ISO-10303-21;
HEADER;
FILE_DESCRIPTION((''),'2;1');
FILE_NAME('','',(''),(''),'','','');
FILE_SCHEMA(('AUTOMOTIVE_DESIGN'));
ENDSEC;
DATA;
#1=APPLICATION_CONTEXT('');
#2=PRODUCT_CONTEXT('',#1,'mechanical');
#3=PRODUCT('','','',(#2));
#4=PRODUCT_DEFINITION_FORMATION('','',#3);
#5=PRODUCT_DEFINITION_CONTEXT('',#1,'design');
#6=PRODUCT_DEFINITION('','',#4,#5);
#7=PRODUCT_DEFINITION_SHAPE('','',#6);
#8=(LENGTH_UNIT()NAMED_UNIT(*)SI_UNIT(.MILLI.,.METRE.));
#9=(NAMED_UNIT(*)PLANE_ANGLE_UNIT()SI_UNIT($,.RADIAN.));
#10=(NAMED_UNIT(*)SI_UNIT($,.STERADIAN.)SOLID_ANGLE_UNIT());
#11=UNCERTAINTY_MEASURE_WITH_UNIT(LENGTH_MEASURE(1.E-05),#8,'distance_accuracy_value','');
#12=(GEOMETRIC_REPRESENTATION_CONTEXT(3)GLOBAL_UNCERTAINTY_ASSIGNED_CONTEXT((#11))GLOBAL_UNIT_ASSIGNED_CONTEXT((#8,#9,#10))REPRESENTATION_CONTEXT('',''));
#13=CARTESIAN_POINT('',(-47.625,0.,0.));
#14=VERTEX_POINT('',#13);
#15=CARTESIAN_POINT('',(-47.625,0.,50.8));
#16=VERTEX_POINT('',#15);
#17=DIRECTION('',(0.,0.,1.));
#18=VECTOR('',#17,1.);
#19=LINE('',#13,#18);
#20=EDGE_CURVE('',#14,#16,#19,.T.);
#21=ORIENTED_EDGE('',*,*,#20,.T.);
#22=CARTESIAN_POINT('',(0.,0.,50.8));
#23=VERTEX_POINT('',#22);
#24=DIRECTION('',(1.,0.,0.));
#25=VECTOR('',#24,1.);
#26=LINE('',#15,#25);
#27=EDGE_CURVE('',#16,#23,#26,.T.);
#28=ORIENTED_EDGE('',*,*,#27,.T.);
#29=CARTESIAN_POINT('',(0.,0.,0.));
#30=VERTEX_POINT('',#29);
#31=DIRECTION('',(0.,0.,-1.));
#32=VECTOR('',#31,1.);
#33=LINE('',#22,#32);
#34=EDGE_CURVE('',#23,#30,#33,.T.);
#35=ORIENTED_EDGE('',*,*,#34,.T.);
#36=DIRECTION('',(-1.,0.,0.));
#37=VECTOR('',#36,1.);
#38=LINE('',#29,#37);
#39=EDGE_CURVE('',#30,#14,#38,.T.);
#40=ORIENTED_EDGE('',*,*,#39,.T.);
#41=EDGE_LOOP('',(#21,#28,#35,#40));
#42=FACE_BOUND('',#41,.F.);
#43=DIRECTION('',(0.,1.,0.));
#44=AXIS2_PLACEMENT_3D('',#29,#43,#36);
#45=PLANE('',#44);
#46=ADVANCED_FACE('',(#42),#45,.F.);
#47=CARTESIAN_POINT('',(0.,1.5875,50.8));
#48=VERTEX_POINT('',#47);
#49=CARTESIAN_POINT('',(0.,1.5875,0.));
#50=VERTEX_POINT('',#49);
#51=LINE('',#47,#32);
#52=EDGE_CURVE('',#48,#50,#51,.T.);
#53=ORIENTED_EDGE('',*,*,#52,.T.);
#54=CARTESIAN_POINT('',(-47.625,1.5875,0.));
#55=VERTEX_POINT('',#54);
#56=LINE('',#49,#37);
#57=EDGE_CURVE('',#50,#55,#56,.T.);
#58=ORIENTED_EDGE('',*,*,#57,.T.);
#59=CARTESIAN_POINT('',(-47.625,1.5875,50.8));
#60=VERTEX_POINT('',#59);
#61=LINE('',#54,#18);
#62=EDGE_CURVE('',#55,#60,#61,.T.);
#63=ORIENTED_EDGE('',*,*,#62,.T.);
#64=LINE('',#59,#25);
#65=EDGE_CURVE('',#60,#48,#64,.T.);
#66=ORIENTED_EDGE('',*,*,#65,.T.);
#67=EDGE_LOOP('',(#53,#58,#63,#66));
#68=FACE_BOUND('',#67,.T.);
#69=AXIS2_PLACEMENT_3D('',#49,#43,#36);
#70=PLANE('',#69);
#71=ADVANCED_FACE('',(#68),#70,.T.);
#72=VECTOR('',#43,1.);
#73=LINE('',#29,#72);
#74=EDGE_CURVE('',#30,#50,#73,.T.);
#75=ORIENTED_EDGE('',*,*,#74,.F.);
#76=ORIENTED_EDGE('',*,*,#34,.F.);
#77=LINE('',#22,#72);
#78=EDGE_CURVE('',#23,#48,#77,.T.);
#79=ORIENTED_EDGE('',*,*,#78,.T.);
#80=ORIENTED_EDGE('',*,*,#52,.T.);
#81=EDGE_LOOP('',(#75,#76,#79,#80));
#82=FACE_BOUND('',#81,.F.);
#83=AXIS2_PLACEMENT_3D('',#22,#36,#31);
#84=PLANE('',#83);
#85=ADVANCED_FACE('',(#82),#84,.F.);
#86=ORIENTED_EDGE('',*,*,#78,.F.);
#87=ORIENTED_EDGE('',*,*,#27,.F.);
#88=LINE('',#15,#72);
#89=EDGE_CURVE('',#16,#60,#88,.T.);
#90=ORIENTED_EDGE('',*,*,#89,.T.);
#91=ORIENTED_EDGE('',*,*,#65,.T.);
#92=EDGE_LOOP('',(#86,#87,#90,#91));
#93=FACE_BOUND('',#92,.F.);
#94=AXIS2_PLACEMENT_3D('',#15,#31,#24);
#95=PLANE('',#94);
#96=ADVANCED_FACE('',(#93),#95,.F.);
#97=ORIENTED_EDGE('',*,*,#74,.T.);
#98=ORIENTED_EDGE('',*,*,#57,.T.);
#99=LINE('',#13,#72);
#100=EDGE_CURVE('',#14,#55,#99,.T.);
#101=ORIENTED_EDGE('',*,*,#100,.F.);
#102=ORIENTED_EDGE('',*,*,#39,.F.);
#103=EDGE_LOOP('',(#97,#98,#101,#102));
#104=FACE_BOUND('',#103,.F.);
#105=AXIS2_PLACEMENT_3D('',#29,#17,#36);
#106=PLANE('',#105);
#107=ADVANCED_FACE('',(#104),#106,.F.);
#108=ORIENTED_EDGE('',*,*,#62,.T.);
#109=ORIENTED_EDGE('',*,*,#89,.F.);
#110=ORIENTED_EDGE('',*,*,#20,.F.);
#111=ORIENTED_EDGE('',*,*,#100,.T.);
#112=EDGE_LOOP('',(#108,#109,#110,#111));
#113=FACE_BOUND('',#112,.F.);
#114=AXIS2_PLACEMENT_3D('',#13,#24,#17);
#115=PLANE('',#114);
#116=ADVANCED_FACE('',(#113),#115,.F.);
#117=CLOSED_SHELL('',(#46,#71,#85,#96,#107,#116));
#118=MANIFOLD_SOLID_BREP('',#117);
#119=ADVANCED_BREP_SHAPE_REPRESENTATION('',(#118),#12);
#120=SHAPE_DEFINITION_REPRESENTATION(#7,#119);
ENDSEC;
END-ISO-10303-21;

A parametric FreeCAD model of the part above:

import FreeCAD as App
import Part
import Sketcher
Q = App.Units.Quantity

doc = App.newDocument("Part")
params = doc.addObject("Spreadsheet::Sheet", "Params")
for row, (alias, value) in enumerate([
    ("sketch1_height", "2 in"),
    ("sketch1_width", "1.875 in"),
    ("pad1_length", "0.0625 in"),
], start=1):
    params.set(f"A{row}", alias)
    params.set(f"B{row}", "=" + value)
    params.setAlias(f"B{row}", alias)

body = doc.addObject("PartDesign::Body", "Body")

sketch1 = doc.addObject("Sketcher::SketchObject", "Sketch")
body.addObject(sketch1)
sketch1.AttachmentSupport = (doc.XZ_Plane, [""])
sketch1.MapMode = "FlatFace"
sketch1.addGeometry([
    Part.LineSegment(App.Vector(0, 50.8, 0), App.Vector(0, 0, 0)),
    Part.LineSegment(App.Vector(0, 0, 0), App.Vector(-47.625, 0, 0)),
    Part.LineSegment(App.Vector(-47.625, 0, 0), App.Vector(-47.625, 50.8, 0)),
    Part.LineSegment(App.Vector(-47.625, 50.8, 0), App.Vector(0, 50.8, 0)),
], False)
sketch1.addConstraint([
    Sketcher.Constraint("Coincident", 0, 2, 1, 1),
    Sketcher.Constraint("Coincident", 1, 2, 2, 1),
    Sketcher.Constraint("Coincident", 2, 2, 3, 1),
    Sketcher.Constraint("Coincident", 3, 2, 0, 1),
    Sketcher.Constraint("Vertical", 0),
    Sketcher.Constraint("Horizontal", 1),
    Sketcher.Constraint("Vertical", 2),
    Sketcher.Constraint("Horizontal", 3),
    Sketcher.Constraint("Coincident", 0, 2, -1, 1),
    Sketcher.Constraint("DistanceY", 0, 2, 0, 1, Q("2 in")),
    Sketcher.Constraint("DistanceX", 1, 2, 1, 1, Q("1.875 in")),
])
sketch1.setExpression("Constraints[9]", "Params.sketch1_height")
sketch1.setExpression("Constraints[10]", "Params.sketch1_width")
pad1 = doc.addObject("PartDesign::Pad", "Pad")
body.addObject(pad1)
pad1.Profile = sketch1
pad1.setExpression("Length", "Params.pad1_length")
pad1.Reversed = True

doc.recompute()
